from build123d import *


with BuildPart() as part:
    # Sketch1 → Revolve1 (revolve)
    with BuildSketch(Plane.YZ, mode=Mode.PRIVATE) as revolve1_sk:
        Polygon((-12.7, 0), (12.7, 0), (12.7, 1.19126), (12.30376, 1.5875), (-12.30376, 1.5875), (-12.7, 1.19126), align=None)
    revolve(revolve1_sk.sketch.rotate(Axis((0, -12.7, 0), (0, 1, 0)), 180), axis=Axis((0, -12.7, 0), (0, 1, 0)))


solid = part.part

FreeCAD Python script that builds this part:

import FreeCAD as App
import Part
import Sketcher
Q = App.Units.Quantity

doc = App.newDocument("Part")
body = doc.addObject("PartDesign::Body", "Body")

sketch1 = body.newObject("Sketcher::SketchObject", "Sketch")
sketch1.AttachmentSupport = (doc.getObject("YZ_Plane"), [""])
sketch1.MapMode = "FlatFace"
sketch1.addGeometry(Part.LineSegment(App.Vector(-12.7, 0, 0), App.Vector(12.7, 0, 0)), False)
sketch1.addGeometry(Part.LineSegment(App.Vector(12.7, 0, 0), App.Vector(12.7, 1.2, 0)), False)
sketch1.addGeometry(Part.LineSegment(App.Vector(12.7, 1.2, 0), App.Vector(12.3, 1.6, 0)), False)
sketch1.addGeometry(Part.LineSegment(App.Vector(12.3, 1.6, 0), App.Vector(-12.3, 1.6, 0)), False)
sketch1.addGeometry(Part.LineSegment(App.Vector(-12.3, 1.6, 0), App.Vector(-12.7, 1.2, 0)), False)
sketch1.addGeometry(Part.LineSegment(App.Vector(-12.7, 1.2, 0), App.Vector(-12.7, 0, 0)), False)
sketch1.addConstraint(Sketcher.Constraint("Coincident", 0, 2, 1, 1))
sketch1.addConstraint(Sketcher.Constraint("Coincident", 1, 2, 2, 1))
sketch1.addConstraint(Sketcher.Constraint("Coincident", 2, 2, 3, 1))
sketch1.addConstraint(Sketcher.Constraint("Coincident", 3, 2, 4, 1))
sketch1.addConstraint(Sketcher.Constraint("Coincident", 4, 2, 5, 1))
sketch1.addConstraint(Sketcher.Constraint("Coincident", 5, 2, 0, 1))
sketch1.addConstraint(Sketcher.Constraint("Horizontal", 0))
sketch1.addConstraint(Sketcher.Constraint("Vertical", 1))
sketch1.addConstraint(Sketcher.Constraint("Horizontal", 3))
sketch1.addConstraint(Sketcher.Constraint("Vertical", 5))
sketch1.addConstraint(Sketcher.Constraint("Symmetric", 0, 2, 5, 2, -1, 1))
sketch1.addConstraint(Sketcher.Constraint("Perpendicular", 2, 4))
sketch1.addConstraint(Sketcher.Constraint("Horizontal", 1, 2, 4, 2))
sketch1.addConstraint(Sketcher.Constraint("Equal", 2, 4))
sketch1.addConstraint(Sketcher.Constraint("DistanceX", 0, 1, 0, 2, Q("1 in")))
sketch1.addConstraint(Sketcher.Constraint("DistanceX", 3, 2, 3, 1, Q("0.9688 in")))
sketch1.addConstraint(Sketcher.Constraint("DistanceY", 1, 1, 1, 2, Q("0.0469 in")))
revolution = body.newObject("PartDesign::Revolution", "Revolution")
revolution.Profile = sketch1
revolution.ReferenceAxis = (sketch1, ["H_Axis"])
revolution.Angle = 360

doc.recompute()
